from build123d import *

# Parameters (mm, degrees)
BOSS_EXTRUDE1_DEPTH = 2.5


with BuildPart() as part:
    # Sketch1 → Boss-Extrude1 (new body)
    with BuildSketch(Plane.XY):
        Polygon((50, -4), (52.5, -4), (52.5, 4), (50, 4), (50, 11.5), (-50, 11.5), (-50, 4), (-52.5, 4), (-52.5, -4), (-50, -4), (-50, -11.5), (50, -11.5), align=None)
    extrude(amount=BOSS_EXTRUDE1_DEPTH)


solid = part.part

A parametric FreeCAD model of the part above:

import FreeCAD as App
import Part
import Sketcher
Q = App.Units.Quantity


def add_polygon(sketch, points):
    """Adds a closed chain of lines whose ends are joined by coincident constraints."""
    first, n = sketch.GeometryCount, len(points)
    for a, b in zip(points, points[1:] + points[:1]):
        sketch.addGeometry(Part.LineSegment(App.Vector(*a, 0), App.Vector(*b, 0)), False)
    for i in range(n):
        sketch.addConstraint(Sketcher.Constraint("Coincident", first + i, 2, first + (i + 1) % n, 1))

doc = App.newDocument("Part")
body = doc.addObject("PartDesign::Body", "Body")

sketch1 = body.newObject("Sketcher::SketchObject", "Sketch")
sketch1.AttachmentSupport = (doc.getObject("XY_Plane"), [""])
sketch1.MapMode = "FlatFace"
add_polygon(sketch1, [(50, -4), (52.5, -4), (52.5, 4), (50, 4), (50, 11.5), (-50, 11.5), (-50, 4), (-52.5, 4), (-52.5, -4), (-50, -4), (-50, -11.5), (50, -11.5)])
sketch1.addConstraint(Sketcher.Constraint("Horizontal", 0))
sketch1.addConstraint(Sketcher.Constraint("Vertical", 1))
sketch1.addConstraint(Sketcher.Constraint("Horizontal", 2))
sketch1.addConstraint(Sketcher.Constraint("Vertical", 3))
sketch1.addConstraint(Sketcher.Constraint("Horizontal", 4))
sketch1.addConstraint(Sketcher.Constraint("Vertical", 5))
sketch1.addConstraint(Sketcher.Constraint("Horizontal", 6))
sketch1.addConstraint(Sketcher.Constraint("Vertical", 7))
sketch1.addConstraint(Sketcher.Constraint("Horizontal", 8))
sketch1.addConstraint(Sketcher.Constraint("Vertical", 9))
sketch1.addConstraint(Sketcher.Constraint("Horizontal", 10))
sketch1.addConstraint(Sketcher.Constraint("Vertical", 11))
sketch1.addConstraint(Sketcher.Constraint("Symmetric", 0, 2, 6, 2, -1, 1))
sketch1.addConstraint(Sketcher.Constraint("Symmetric", 2, 2, 8, 2, -1, 1))
sketch1.addConstraint(Sketcher.Constraint("Symmetric", 4, 2, 10, 2, -1, 1))
sketch1.addConstraint(Sketcher.Constraint("Symmetric", 2, 2, 5, 2, -2))
sketch1.addConstraint(Sketcher.Constraint("DistanceX", 4, 2, 4, 1, Q("100 mm")))
sketch1.addConstraint(Sketcher.Constraint("DistanceY", 1, 1, 1, 2, Q("8 mm")))
sketch1.addConstraint(Sketcher.Constraint("DistanceX", 0, 1, 0, 2, Q("2.5 mm")))
sketch1.addConstraint(Sketcher.Constraint("DistanceY", 3, 1, 3, 2, Q("7.5 mm")))
pad1 = body.newObject("PartDesign::Pad", "Pad")
pad1.Profile = sketch1
pad1.Length = 2.5

doc.recompute()
